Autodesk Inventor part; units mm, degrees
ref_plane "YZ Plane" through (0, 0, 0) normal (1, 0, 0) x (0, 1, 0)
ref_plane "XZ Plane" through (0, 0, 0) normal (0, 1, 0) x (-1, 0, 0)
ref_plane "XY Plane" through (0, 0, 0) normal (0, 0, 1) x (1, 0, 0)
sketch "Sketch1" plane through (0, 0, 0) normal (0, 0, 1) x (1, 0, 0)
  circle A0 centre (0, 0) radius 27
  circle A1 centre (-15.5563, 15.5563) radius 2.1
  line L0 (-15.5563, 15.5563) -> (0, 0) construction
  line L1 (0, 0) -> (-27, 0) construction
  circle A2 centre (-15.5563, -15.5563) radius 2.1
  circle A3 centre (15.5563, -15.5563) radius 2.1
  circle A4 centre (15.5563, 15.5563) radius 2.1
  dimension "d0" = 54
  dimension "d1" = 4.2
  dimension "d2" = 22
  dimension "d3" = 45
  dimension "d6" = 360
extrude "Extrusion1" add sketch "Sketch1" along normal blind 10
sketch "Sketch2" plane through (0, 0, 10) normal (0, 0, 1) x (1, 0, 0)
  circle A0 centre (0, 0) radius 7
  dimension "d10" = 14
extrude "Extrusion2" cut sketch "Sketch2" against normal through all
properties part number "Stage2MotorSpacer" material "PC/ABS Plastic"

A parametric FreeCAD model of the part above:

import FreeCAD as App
import Part
import Sketcher

doc = App.newDocument("Part")
body = doc.addObject("PartDesign::Body", "Body")

# Sketch on XY plane
sketch1 = doc.addObject("Sketcher::SketchObject", "Sketch")
body.addObject(sketch1)
sketch1.AttachmentSupport = (doc.XY_Plane, [""])
sketch1.MapMode = "FlatFace"
sketch1.addGeometry(Part.Circle(App.Vector(0, 0, 0), App.Vector(0, 0, 1), 27), False)
sketch1.addGeometry(Part.Circle(App.Vector(-15.6, -15.6, 0), App.Vector(0, 0, 1), 2.1), False)
sketch1.addGeometry(Part.Circle(App.Vector(15.6, -15.6, 0), App.Vector(0, 0, 1), 2.1), False)
sketch1.addGeometry(Part.Circle(App.Vector(-15.6, 15.6, 0), App.Vector(0, 0, 1), 2.1), False)
sketch1.addGeometry(Part.Circle(App.Vector(15.6, 15.6, 0), App.Vector(0, 0, 1), 2.1), False)
sketch1.addConstraint(Sketcher.Constraint("Coincident", 0, 3, -1, 1))
sketch1.addConstraint(Sketcher.Constraint("Equal", 1, 2))
sketch1.addConstraint(Sketcher.Constraint("Equal", 2, 3))
sketch1.addConstraint(Sketcher.Constraint("Equal", 3, 4))
sketch1.addConstraint(Sketcher.Constraint("Symmetric", 2, 3, 3, 3, -1, 1))
sketch1.addConstraint(Sketcher.Constraint("Symmetric", 1, 3, 4, 3, -1, 1))
sketch1.addConstraint(Sketcher.Constraint("Symmetric", 1, 3, 2, 3, -2))
sketch1.addConstraint(Sketcher.Constraint("Diameter", 0, 54.0))
sketch1.addConstraint(Sketcher.Constraint("Diameter", 1, 4.2))
sketch1.addConstraint(Sketcher.Constraint("DistanceX", 1, 3, -1, 1, 15.5563))
sketch1.addConstraint(Sketcher.Constraint("DistanceY", 1, 3, -1, 1, 15.5563))
pad1 = doc.addObject("PartDesign::Pad", "Pad")
body.addObject(pad1)
pad1.Profile = sketch1
pad1.Length = 10

# Sketch on XY plane
sketch2 = doc.addObject("Sketcher::SketchObject", "Sketch001")
body.addObject(sketch2)
sketch2.AttachmentSupport = (doc.XY_Plane, [""])
sketch2.MapMode = "FlatFace"
sketch2.AttachmentOffset = App.Placement(App.Vector(0, 0, 10), App.Rotation())
sketch2.addGeometry(Part.Circle(App.Vector(0, 0, 0), App.Vector(0, 0, 1), 7), False)
sketch2.addConstraint(Sketcher.Constraint("Coincident", 0, 3, -1, 1))
sketch2.addConstraint(Sketcher.Constraint("Diameter", 0, 14.0))
pocket1 = doc.addObject("PartDesign::Pocket", "Pocket")
body.addObject(pocket1)
pocket1.Profile = sketch2
pocket1.Type = "ThroughAll"

doc.recompute()
